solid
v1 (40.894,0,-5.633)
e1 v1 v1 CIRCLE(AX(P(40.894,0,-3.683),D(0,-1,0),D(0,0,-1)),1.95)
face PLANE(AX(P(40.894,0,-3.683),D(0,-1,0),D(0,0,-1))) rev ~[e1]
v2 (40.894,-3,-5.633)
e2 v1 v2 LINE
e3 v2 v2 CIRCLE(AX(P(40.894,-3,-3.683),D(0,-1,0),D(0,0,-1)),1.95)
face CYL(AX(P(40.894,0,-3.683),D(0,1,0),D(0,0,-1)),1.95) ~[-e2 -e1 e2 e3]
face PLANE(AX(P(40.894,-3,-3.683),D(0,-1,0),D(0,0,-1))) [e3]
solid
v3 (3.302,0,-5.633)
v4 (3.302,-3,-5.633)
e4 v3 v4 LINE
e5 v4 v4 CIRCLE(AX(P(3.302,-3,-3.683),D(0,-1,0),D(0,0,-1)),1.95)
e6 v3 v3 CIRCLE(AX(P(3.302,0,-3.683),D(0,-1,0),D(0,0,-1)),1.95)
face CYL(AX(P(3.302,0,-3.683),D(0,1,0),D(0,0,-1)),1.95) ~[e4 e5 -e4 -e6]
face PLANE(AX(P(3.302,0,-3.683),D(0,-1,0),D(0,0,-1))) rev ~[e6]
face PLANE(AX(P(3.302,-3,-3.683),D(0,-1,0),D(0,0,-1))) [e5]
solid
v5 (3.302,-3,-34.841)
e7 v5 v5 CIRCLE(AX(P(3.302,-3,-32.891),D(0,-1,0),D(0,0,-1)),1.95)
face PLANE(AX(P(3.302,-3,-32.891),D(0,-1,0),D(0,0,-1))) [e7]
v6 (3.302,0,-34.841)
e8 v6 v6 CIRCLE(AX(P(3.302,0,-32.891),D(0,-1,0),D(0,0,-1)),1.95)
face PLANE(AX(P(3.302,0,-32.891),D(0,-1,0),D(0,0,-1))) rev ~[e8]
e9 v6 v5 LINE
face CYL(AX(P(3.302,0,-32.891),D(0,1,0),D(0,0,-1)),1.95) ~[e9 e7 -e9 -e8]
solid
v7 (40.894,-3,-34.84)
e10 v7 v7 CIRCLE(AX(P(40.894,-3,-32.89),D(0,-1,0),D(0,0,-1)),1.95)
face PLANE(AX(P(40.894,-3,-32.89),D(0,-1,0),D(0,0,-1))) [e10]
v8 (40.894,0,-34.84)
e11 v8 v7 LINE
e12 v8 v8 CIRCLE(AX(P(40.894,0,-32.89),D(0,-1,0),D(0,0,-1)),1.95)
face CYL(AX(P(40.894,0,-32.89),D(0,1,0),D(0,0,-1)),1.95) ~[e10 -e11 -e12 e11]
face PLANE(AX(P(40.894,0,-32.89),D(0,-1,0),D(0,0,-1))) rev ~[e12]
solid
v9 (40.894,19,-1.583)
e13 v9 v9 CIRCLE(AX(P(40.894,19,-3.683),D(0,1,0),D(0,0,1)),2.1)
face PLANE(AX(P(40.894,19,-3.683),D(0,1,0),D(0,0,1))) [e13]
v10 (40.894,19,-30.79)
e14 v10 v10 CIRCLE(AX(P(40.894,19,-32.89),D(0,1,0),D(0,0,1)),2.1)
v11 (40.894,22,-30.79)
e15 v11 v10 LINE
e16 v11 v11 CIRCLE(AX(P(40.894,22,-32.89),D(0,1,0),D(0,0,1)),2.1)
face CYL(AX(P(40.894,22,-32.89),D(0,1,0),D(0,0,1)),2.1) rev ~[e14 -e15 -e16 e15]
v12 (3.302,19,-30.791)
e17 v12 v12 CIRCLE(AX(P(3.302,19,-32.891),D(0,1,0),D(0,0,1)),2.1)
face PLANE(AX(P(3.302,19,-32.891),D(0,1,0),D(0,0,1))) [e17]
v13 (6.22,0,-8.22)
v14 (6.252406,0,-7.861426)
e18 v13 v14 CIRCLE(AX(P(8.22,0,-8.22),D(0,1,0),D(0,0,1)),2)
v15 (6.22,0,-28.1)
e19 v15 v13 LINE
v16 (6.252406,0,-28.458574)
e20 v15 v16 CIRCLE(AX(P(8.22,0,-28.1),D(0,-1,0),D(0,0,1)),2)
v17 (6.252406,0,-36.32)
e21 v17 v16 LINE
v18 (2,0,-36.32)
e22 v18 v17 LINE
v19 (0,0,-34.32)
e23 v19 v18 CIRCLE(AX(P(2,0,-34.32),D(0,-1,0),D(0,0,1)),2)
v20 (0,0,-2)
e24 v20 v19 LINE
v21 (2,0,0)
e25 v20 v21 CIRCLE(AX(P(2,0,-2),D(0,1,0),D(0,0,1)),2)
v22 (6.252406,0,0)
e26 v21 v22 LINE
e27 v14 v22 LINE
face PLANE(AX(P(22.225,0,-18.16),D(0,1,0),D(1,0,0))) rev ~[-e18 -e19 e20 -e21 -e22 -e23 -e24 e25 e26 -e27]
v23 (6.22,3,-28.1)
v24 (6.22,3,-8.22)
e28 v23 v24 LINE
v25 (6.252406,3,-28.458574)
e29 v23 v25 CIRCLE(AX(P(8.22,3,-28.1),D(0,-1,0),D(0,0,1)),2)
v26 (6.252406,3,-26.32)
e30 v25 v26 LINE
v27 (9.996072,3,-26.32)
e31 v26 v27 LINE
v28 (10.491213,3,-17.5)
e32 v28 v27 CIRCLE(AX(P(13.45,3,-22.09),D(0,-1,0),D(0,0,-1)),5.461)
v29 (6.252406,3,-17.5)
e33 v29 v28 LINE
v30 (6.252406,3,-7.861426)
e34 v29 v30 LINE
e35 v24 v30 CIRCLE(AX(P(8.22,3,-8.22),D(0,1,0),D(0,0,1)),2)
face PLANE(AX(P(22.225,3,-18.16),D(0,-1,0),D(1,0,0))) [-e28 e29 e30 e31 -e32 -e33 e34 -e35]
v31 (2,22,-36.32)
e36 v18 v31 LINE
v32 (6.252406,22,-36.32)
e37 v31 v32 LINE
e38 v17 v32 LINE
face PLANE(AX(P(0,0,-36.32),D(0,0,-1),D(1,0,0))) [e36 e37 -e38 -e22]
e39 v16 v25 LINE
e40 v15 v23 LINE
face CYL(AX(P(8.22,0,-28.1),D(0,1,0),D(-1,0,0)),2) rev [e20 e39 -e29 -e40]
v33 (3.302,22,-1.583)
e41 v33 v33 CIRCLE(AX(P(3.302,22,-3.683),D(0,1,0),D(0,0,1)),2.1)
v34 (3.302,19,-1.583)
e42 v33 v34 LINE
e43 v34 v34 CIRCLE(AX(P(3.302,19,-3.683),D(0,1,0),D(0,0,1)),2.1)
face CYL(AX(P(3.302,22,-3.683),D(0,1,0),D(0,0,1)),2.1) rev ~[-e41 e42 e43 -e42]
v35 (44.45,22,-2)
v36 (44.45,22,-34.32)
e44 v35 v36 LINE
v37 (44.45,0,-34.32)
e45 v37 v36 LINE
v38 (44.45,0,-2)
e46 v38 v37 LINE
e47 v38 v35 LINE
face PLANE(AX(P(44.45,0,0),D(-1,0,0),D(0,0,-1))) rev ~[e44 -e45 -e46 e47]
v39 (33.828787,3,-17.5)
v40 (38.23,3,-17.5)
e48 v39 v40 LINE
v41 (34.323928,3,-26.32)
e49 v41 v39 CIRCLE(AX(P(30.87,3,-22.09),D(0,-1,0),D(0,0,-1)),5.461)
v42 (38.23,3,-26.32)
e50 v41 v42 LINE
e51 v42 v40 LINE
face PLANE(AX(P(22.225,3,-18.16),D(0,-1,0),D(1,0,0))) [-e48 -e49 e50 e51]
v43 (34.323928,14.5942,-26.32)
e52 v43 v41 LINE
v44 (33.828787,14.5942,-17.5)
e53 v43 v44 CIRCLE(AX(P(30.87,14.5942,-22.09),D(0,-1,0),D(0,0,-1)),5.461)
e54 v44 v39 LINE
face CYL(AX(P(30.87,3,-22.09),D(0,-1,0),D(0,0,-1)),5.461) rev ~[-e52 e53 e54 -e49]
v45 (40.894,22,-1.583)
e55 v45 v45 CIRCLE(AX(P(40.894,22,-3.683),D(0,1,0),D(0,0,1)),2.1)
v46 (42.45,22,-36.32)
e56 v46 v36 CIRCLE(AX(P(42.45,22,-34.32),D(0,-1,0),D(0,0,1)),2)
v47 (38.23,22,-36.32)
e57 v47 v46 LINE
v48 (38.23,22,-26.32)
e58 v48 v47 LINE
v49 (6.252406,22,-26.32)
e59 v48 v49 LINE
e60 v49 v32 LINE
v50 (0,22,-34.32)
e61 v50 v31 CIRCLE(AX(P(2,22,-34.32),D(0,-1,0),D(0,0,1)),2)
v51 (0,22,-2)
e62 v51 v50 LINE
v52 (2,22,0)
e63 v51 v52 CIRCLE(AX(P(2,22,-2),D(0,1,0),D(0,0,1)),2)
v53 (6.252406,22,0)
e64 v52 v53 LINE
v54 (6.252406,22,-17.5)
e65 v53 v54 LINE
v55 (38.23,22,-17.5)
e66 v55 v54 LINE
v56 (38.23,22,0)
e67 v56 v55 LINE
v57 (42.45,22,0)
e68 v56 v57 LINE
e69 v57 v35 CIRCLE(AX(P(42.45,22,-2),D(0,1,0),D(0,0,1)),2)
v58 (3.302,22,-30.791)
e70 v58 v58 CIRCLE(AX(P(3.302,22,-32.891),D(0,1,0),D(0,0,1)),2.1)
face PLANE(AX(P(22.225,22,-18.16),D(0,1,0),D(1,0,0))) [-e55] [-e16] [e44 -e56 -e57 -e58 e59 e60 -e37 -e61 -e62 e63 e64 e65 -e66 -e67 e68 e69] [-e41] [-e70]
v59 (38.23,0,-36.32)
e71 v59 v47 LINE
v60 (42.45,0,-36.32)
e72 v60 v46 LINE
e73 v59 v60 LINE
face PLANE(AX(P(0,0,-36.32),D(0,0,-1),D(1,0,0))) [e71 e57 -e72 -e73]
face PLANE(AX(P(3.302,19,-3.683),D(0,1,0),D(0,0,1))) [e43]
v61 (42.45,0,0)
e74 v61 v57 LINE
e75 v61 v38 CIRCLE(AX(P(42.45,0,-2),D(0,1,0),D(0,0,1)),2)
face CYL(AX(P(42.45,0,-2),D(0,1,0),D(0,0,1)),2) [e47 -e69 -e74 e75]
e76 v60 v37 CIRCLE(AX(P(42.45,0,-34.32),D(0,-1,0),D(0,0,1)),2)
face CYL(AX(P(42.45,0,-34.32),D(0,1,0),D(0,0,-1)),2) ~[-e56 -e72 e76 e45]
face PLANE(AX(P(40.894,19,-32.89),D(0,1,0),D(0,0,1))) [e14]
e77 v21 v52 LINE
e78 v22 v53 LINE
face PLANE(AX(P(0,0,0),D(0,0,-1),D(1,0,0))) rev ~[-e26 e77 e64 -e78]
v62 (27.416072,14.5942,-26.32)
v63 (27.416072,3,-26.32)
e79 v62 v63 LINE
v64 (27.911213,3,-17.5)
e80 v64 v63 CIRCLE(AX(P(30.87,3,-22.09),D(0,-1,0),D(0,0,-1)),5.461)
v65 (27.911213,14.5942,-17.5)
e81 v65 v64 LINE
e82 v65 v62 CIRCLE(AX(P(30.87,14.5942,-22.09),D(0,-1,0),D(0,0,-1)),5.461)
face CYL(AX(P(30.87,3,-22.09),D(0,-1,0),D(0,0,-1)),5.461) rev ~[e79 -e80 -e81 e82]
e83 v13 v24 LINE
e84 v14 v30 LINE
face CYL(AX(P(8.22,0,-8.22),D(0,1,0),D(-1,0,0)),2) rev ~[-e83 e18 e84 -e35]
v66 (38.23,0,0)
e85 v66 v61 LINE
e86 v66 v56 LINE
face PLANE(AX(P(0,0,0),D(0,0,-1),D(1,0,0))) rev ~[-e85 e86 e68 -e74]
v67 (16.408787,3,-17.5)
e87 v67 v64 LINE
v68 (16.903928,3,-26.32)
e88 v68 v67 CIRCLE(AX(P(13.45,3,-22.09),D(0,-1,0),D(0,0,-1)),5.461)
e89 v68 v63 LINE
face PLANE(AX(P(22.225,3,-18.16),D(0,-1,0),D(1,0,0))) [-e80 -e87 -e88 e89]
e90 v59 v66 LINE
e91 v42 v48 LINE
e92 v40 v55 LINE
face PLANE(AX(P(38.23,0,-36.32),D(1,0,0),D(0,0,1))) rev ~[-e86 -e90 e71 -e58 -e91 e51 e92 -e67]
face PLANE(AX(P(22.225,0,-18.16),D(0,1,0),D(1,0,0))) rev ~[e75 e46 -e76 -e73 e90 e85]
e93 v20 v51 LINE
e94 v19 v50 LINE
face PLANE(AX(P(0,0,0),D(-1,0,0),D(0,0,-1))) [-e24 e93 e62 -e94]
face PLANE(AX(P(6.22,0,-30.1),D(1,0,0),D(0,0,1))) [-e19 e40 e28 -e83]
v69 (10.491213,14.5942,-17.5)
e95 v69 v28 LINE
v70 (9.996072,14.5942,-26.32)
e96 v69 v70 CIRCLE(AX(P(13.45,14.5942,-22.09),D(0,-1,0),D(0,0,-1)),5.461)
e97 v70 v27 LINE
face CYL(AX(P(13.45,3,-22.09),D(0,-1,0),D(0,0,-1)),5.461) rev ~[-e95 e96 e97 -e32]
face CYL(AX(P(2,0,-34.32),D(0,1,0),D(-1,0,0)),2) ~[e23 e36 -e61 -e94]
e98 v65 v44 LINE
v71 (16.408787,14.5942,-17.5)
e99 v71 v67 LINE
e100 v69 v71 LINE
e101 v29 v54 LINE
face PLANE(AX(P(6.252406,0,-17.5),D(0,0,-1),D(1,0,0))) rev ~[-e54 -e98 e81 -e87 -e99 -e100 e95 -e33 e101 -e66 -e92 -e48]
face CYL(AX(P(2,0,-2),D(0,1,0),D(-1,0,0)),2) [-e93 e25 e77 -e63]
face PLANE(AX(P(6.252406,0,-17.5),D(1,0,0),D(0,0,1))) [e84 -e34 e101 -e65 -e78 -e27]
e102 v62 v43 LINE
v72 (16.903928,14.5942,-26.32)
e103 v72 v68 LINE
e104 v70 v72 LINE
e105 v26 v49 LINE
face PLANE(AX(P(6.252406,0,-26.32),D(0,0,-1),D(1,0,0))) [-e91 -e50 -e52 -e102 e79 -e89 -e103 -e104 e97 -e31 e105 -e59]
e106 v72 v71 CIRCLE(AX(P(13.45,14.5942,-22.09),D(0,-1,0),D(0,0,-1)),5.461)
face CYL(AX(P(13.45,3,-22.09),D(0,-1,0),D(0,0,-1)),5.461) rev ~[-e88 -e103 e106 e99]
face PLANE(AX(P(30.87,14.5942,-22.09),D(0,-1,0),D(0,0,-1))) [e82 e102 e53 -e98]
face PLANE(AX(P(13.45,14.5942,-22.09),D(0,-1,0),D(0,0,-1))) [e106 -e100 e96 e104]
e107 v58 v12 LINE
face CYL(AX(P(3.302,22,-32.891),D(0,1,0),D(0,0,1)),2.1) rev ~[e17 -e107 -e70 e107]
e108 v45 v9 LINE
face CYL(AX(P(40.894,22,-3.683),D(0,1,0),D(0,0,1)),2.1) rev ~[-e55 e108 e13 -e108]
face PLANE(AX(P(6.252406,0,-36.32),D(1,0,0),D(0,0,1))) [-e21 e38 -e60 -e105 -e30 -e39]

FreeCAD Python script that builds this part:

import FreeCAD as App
import Part
import Sketcher
Q = App.Units.Quantity


def edges_at(feature, points):
    """Names of the edges that pass closest to the given points."""
    edges = feature.Shape.Edges
    near = lambda p: min(range(len(edges)), key=lambda i: edges[i].distToShape(Part.Vertex(*p))[0])
    return sorted({f"Edge{near(p) + 1}" for p in points})


def add_polygon(sketch, points):
    """Adds a closed chain of lines whose ends are joined by coincident constraints."""
    first, n = sketch.GeometryCount, len(points)
    for a, b in zip(points, points[1:] + points[:1]):
        sketch.addGeometry(Part.LineSegment(App.Vector(*a, 0), App.Vector(*b, 0)), False)
    for i in range(n):
        sketch.addConstraint(Sketcher.Constraint("Coincident", first + i, 2, first + (i + 1) % n, 1))

doc = App.newDocument("Part")
body = doc.addObject("PartDesign::Body", "Body")

sketch1 = body.newObject("Sketcher::SketchObject", "Sketch")
sketch1.AttachmentSupport = (doc.getObject("XZ_Plane"), [""])
sketch1.MapMode = "FlatFace"
add_polygon(sketch1, [(0, -36), (0, 0), (44, 0), (44, -36)])
sketch1.addConstraint([
    Sketcher.Constraint("Vertical", 0),
    Sketcher.Constraint("Horizontal", 1),
    Sketcher.Constraint("Vertical", 2),
    Sketcher.Constraint("Horizontal", 3),
    Sketcher.Constraint("Coincident", 0, 2, -1, 1),
    Sketcher.Constraint("DistanceX", 1, 1, 1, 2, Q("44.45 mm")),
    Sketcher.Constraint("DistanceY", 0, 1, 0, 2, Q("36.32 mm")),
])
pad1 = body.newObject("PartDesign::Pad", "Pad")
pad1.Profile = sketch1
pad1.Length = 22
pad1.Reversed = True

sketch2 = body.newObject("Sketcher::SketchObject", "Sketch001")
sketch2.AttachmentSupport = (doc.getObject("XZ_Plane"), [""])
sketch2.MapMode = "FlatFace"
sketch2.AttachmentOffset = App.Placement(App.Vector(0, 0, -22), App.Rotation())
sketch2.addGeometry([
    Part.Circle(App.Vector(3.3, -32.9, 0), App.Vector(0, 0, 1), 2.1),
    Part.Circle(App.Vector(40.9, -32.9, 0), App.Vector(0, 0, 1), 2.1),
    Part.Circle(App.Vector(40.9, -3.7, 0), App.Vector(0, 0, 1), 2.1),
    Part.Circle(App.Vector(3.3, -3.7, 0), App.Vector(0, 0, 1), 2.1),
    Part.Circle(App.Vector(22.2, -36.3, 0), App.Vector(0, 0, 1), 1),
], False)
sketch2.addConstraint([
    Sketcher.Constraint("Equal", 0, 1),
    Sketcher.Constraint("Equal", 1, 2),
    Sketcher.Constraint("Equal", 2, 3),
    Sketcher.Constraint("Horizontal", 2, 3, 3, 3),
    Sketcher.Constraint("Vertical", 1, 3, 2, 3),
    Sketcher.Constraint("Vertical", 0, 3, 3, 3),
    Sketcher.Constraint("Diameter", 4, Q("2 mm")),
    Sketcher.Constraint("Diameter", 0, Q("4.2 mm")),
    Sketcher.Constraint("DistanceY", 1, 3, -1, 1, Q("32.89 mm")),
    Sketcher.Constraint("DistanceY", 4, 3, -1, 1, Q("36.32 mm")),
    Sketcher.Constraint("DistanceX", -1, 1, 0, 3, Q("3.302 mm")),
    Sketcher.Constraint("DistanceY", 0, 3, -1, 1, Q("32.891 mm")),
    Sketcher.Constraint("DistanceX", -1, 1, 1, 3, Q("40.894 mm")),
    Sketcher.Constraint("DistanceY", 2, 3, -1, 1, Q("3.683 mm")),
    Sketcher.Constraint("DistanceX", -1, 1, 4, 3, Q("22.225 mm")),
])
pocket1 = body.newObject("PartDesign::Pocket", "Pocket")
pocket1.Profile = sketch2
pocket1.Length = 3
pocket1.Reversed = True
doc.recompute()

fillet = body.newObject("PartDesign::Fillet", "Fillet")
fillet.Base = (pocket1, edges_at(pocket1, [
    (0, 11, -36.32),
    (44.45, 11, -36.32),
    (44.45, 11, 0),
    (0, 11, 0),
]))
fillet.Radius = 2

sketch3 = body.newObject("Sketcher::SketchObject", "Sketch002")
sketch3.AttachmentSupport = (doc.getObject("XZ_Plane"), [""])
sketch3.MapMode = "FlatFace"
add_polygon(sketch3, [(6, -6), (6, -30), (38, -30), (38, -6)])
sketch3.addConstraint([
    Sketcher.Constraint("Vertical", 0),
    Sketcher.Constraint("Horizontal", 1),
    Sketcher.Constraint("Vertical", 2),
    Sketcher.Constraint("Horizontal", 3),
    Sketcher.Constraint("DistanceX", 1, 1, 1, 2, Q("32.01 mm")),
    Sketcher.Constraint("DistanceY", 0, 2, 0, 1, Q("23.88 mm")),
    Sketcher.Constraint("DistanceY", 0, 2, -1, 1, Q("30.1 mm")),
    Sketcher.Constraint("DistanceX", -1, 1, 0, 2, Q("6.22 mm")),
])
pocket2 = body.newObject("PartDesign::Pocket", "Pocket001")
pocket2.Profile = sketch3
pocket2.Length = 3
doc.recompute()

fillet2 = body.newObject("PartDesign::Fillet", "Fillet001")
fillet2.Base = (pocket2, edges_at(pocket2, [
    (6.22, 1.5, -30.1),
    (6.22, 1.5, -6.22),
    (38.23, 1.5, -6.22),
    (38.23, 1.5, -30.1),
]))
fillet2.Radius = 2

sketch4 = body.newObject("Sketcher::SketchObject", "Sketch003")
sketch4.AttachmentSupport = (doc.getObject("XZ_Plane"), [""])
sketch4.MapMode = "FlatFace"
sketch4.AttachmentOffset = App.Placement(App.Vector(0, 0, -3), App.Rotation())
sketch4.addGeometry([
    Part.Circle(App.Vector(31, -22, 0), App.Vector(0, 0, 1), 5),
    Part.Circle(App.Vector(13, -22, 0), App.Vector(0, 0, 1), 5),
], False)
sketch4.addConstraint([
    Sketcher.Constraint("Equal", 0, 1),
    Sketcher.Constraint("Horizontal", 0, 3, 1, 3),
    Sketcher.Constraint("Diameter", 0, Q("10.922 mm")),
    Sketcher.Constraint("DistanceX", -1, 1, 0, 3, Q("30.87 mm")),
    Sketcher.Constraint("DistanceY", 0, 3, -1, 1, Q("22.09 mm")),
    Sketcher.Constraint("DistanceX", -1, 1, 1, 3, Q("13.45 mm")),
])
pocket3 = body.newObject("PartDesign::Pocket", "Pocket002")
pocket3.Profile = sketch4
pocket3.Length = 11.5942

sketch5 = body.newObject("Sketcher::SketchObject", "Sketch004")
sketch5.AttachmentSupport = (doc.getObject("XZ_Plane"), [""])
sketch5.MapMode = "FlatFace"
add_polygon(sketch5, [(6, 0), (6, -18), (38, -18), (38, 0)])
add_polygon(sketch5, [(6, -26), (6, -36), (38, -36), (38, -26)])
sketch5.addConstraint([
    Sketcher.Constraint("Vertical", 0),
    Sketcher.Constraint("Horizontal", 1),
    Sketcher.Constraint("Vertical", 2),
    Sketcher.Constraint("Horizontal", 3),
    Sketcher.Constraint("Vertical", 4),
    Sketcher.Constraint("Horizontal", 5),
    Sketcher.Constraint("Vertical", 6),
    Sketcher.Constraint("Horizontal", 7),
    Sketcher.Constraint("PointOnObject", 2, 2, -1),
    Sketcher.Constraint("Vertical", 3, 2, 4, 2),
    Sketcher.Constraint("Vertical", 2, 2, 5, 2),
    Sketcher.Constraint("DistanceY", 4, 2, 4, 1, Q("10 mm")),
    Sketcher.Constraint("DistanceY", 0, 2, 0, 1, Q("17.5 mm")),
    Sketcher.Constraint("DistanceX", -1, 1, 1, 2, Q("38.23 mm")),
    Sketcher.Constraint("DistanceY", 4, 2, -1, 1, Q("36.32 mm")),
    Sketcher.Constraint("DistanceX", 1, 1, 1, 2, Q("31.977594 mm")),
])
pocket4 = body.newObject("PartDesign::Pocket", "Pocket003")
pocket4.Profile = sketch5
pocket4.Type = "ThroughAll"
body2 = doc.addObject("PartDesign::Body", "Body001")

sketch6 = body2.newObject("Sketcher::SketchObject", "Sketch005")
sketch6.AttachmentSupport = (doc.getObject("XZ_Plane001"), [""])
sketch6.MapMode = "FlatFace"
sketch6.addGeometry(Part.Circle(App.Vector(3.3, -3.7, 0), App.Vector(0, 0, 1), 1.9), False)
sketch6.addConstraint([
    Sketcher.Constraint("Diameter", 0, Q("3.9 mm")),
    Sketcher.Constraint("DistanceX", -1, 1, 0, 3, Q("3.302 mm")),
    Sketcher.Constraint("DistanceY", 0, 3, -1, 1, Q("3.683 mm")),
])
pad2 = body2.newObject("PartDesign::Pad", "Pad001")
pad2.Profile = sketch6
pad2.Length = 3
body3 = doc.addObject("PartDesign::Body", "Body002")

sketch7 = body3.newObject("Sketcher::SketchObject", "Sketch006")
sketch7.AttachmentSupport = (doc.getObject("XZ_Plane002"), [""])
sketch7.MapMode = "FlatFace"
sketch7.addGeometry(Part.Circle(App.Vector(3.3, -32.9, 0), App.Vector(0, 0, 1), 1.9), False)
sketch7.addConstraint([
    Sketcher.Constraint("Diameter", 0, Q("3.9 mm")),
    Sketcher.Constraint("DistanceX", -1, 1, 0, 3, Q("3.302 mm")),
    Sketcher.Constraint("DistanceY", 0, 3, -1, 1, Q("32.891 mm")),
])
pad3 = body3.newObject("PartDesign::Pad", "Pad002")
pad3.Profile = sketch7
pad3.Length = 3
body4 = doc.addObject("PartDesign::Body", "Body003")

sketch8 = body4.newObject("Sketcher::SketchObject", "Sketch007")
sketch8.AttachmentSupport = (doc.getObject("XZ_Plane003"), [""])
sketch8.MapMode = "FlatFace"
sketch8.addGeometry(Part.Circle(App.Vector(40.9, -32.9, 0), App.Vector(0, 0, 1), 1.9), False)
sketch8.addConstraint([
    Sketcher.Constraint("Diameter", 0, Q("3.9 mm")),
    Sketcher.Constraint("DistanceY", 0, 3, -1, 1, Q("32.89 mm")),
    Sketcher.Constraint("DistanceX", -1, 1, 0, 3, Q("40.894 mm")),
])
pad4 = body4.newObject("PartDesign::Pad", "Pad003")
pad4.Profile = sketch8
pad4.Length = 3
body5 = doc.addObject("PartDesign::Body", "Body004")

sketch9 = body5.newObject("Sketcher::SketchObject", "Sketch008")
sketch9.AttachmentSupport = (doc.getObject("XZ_Plane004"), [""])
sketch9.MapMode = "FlatFace"
sketch9.addGeometry(Part.Circle(App.Vector(40.9, -3.7, 0), App.Vector(0, 0, 1), 1.9), False)
sketch9.addConstraint([
    Sketcher.Constraint("Diameter", 0, Q("3.9 mm")),
    Sketcher.Constraint("DistanceX", -1, 1, 0, 3, Q("40.894 mm")),
    Sketcher.Constraint("DistanceY", 0, 3, -1, 1, Q("3.683 mm")),
])
pad5 = body5.newObject("PartDesign::Pad", "Pad004")
pad5.Profile = sketch9
pad5.Length = 3

doc.recompute()
